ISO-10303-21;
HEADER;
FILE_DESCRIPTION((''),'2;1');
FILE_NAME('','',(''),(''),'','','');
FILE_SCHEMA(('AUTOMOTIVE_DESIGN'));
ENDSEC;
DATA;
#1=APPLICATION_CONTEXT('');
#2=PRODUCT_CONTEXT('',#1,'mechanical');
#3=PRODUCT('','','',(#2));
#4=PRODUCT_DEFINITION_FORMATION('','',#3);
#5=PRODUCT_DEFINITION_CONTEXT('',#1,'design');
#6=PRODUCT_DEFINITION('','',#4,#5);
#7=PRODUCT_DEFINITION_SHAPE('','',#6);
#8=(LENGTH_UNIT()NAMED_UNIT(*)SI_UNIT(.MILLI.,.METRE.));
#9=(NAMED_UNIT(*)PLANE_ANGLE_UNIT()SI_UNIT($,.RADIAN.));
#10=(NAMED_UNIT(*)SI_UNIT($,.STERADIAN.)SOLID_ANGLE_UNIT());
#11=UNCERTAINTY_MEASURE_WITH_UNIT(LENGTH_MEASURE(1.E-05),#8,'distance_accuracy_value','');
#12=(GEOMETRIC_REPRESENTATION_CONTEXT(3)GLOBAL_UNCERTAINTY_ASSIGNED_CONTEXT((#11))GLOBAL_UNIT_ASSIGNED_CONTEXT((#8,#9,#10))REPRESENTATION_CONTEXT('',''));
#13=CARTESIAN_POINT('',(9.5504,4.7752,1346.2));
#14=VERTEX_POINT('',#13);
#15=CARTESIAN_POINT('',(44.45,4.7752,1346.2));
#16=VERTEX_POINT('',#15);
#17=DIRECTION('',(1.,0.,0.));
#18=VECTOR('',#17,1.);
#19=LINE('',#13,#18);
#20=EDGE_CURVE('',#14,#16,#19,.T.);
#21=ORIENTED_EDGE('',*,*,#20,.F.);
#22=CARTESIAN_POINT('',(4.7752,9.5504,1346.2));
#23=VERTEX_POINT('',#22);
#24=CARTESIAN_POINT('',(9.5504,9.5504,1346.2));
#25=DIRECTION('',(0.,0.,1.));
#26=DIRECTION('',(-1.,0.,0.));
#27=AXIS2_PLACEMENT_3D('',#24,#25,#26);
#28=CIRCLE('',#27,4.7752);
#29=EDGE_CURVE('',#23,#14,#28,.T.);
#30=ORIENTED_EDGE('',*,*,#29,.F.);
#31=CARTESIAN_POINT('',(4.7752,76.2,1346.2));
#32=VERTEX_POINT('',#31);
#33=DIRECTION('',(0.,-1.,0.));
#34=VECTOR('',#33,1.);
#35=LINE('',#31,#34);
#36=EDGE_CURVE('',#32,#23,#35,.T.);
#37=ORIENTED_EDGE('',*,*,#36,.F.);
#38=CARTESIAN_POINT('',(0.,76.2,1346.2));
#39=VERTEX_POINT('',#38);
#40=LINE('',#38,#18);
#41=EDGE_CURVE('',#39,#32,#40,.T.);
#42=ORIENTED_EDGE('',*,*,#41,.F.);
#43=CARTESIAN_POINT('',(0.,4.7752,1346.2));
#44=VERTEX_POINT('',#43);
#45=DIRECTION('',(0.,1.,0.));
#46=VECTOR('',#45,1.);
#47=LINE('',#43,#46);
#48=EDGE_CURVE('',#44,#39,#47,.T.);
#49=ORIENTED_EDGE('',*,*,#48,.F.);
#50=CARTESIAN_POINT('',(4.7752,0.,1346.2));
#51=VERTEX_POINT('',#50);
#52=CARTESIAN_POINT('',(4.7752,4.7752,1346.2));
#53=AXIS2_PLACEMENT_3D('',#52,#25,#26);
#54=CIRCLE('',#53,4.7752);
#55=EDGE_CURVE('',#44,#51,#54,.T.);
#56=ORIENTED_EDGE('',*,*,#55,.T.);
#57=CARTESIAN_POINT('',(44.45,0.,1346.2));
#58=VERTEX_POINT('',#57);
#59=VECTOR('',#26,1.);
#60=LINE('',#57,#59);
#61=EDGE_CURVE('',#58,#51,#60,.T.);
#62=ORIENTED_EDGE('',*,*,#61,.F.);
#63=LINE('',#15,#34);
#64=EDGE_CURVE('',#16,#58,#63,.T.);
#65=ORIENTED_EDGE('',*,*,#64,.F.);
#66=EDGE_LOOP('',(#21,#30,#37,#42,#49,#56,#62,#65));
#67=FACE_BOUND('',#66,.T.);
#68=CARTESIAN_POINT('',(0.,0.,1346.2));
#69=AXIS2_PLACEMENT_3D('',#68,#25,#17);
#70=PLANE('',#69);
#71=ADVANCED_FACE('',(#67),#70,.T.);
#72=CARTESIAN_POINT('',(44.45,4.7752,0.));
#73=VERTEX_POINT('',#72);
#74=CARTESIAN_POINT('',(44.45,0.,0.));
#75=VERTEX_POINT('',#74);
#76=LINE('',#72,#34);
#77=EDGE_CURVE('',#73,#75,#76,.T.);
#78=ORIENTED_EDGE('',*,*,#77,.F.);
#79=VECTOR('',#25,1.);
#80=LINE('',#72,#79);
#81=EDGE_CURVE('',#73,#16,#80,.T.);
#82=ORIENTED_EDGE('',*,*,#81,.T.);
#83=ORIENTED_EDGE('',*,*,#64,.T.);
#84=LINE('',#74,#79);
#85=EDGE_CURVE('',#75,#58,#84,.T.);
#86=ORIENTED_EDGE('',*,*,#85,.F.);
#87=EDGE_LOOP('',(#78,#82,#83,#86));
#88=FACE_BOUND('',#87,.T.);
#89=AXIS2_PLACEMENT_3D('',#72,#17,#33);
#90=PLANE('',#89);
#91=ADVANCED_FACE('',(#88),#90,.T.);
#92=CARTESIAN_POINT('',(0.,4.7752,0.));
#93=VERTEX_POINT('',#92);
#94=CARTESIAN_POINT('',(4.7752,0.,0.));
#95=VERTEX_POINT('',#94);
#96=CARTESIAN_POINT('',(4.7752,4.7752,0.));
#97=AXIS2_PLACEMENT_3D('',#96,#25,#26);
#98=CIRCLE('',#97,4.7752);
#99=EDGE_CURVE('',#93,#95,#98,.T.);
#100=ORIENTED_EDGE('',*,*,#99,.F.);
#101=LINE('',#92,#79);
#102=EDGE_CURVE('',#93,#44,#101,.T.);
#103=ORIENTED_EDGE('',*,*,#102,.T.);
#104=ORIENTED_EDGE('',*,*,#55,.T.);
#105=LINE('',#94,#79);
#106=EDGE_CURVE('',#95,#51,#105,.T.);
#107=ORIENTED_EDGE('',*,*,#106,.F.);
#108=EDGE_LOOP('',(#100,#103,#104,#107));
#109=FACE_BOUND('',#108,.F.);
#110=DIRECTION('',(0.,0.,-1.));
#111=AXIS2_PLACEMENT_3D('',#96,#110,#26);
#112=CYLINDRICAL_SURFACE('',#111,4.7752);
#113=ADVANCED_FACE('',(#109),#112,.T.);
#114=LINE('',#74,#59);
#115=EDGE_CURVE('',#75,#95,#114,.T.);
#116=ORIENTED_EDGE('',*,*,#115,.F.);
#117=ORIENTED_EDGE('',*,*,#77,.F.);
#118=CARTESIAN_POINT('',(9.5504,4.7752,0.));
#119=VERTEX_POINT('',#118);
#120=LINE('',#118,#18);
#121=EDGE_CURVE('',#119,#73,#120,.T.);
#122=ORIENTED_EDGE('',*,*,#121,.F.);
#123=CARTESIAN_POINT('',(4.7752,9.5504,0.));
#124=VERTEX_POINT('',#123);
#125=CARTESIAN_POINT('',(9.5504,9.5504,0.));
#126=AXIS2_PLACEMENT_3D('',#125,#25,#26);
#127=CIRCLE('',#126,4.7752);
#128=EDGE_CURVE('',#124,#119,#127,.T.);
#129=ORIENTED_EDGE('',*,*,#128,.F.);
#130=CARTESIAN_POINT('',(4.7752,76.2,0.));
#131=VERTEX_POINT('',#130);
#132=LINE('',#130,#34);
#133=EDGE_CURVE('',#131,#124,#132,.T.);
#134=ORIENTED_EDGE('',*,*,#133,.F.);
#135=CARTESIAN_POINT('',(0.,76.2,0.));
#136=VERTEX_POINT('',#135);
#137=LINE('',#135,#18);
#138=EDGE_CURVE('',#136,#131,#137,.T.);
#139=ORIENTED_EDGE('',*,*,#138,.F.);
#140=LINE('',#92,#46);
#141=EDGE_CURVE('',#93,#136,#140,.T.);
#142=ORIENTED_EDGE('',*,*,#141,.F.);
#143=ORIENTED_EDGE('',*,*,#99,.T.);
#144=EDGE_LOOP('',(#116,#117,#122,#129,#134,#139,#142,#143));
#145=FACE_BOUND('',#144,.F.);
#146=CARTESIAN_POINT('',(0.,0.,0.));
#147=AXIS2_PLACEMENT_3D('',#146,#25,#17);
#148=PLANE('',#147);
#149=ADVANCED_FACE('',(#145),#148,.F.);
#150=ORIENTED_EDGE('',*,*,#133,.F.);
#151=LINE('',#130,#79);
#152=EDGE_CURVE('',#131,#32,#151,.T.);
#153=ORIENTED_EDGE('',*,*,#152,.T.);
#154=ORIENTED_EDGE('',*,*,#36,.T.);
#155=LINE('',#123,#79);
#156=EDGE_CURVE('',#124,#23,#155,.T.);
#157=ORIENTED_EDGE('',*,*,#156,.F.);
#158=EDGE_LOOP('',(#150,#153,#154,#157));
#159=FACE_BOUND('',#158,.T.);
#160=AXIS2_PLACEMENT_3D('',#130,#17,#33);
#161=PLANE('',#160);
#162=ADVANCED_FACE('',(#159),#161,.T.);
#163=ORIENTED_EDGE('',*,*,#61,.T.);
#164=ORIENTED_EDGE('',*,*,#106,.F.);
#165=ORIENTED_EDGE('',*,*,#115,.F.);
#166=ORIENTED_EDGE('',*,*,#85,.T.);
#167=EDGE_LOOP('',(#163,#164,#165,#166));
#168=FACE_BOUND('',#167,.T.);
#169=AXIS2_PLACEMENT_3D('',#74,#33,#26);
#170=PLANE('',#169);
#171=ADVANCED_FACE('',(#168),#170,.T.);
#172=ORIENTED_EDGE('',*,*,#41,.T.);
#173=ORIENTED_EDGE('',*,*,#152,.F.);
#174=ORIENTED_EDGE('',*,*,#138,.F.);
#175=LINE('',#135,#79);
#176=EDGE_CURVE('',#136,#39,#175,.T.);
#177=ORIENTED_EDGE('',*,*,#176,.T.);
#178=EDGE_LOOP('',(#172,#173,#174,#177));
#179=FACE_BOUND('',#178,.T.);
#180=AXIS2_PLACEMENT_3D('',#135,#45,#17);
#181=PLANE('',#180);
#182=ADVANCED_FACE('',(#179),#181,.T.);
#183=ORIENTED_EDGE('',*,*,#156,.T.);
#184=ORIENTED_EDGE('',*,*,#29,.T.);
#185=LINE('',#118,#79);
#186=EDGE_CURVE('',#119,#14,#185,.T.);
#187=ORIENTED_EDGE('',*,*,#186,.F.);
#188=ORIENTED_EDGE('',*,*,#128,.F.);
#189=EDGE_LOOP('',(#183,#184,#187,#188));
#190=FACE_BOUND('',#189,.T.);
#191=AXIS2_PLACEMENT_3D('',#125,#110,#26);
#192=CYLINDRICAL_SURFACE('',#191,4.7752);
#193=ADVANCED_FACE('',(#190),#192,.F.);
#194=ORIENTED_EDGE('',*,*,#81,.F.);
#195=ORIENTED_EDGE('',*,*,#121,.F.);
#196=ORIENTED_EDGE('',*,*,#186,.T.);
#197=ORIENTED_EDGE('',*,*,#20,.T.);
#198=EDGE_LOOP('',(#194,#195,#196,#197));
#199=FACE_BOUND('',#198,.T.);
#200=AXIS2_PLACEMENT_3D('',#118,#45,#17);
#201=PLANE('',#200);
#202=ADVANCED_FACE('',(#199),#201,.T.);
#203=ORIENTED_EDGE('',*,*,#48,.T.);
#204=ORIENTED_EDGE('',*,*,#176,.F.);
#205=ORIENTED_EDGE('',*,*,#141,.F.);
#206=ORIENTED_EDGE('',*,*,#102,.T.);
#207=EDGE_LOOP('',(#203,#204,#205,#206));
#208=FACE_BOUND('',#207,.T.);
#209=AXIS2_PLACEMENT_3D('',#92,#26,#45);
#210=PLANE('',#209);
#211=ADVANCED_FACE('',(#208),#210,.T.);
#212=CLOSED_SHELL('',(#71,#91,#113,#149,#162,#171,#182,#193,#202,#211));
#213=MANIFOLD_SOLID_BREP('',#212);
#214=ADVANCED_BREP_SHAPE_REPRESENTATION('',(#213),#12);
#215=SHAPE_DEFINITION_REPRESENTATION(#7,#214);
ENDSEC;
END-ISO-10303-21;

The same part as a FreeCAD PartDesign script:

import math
import FreeCAD as App
import Part
import Sketcher

V = App.Vector
Q = App.Units.Quantity

doc = App.newDocument("Part")
params = doc.addObject("Spreadsheet::Sheet", "Params")
for row, (alias, value) in enumerate([
    ("sketch1_radius", "0.188 in"),
    ("pad1_length", "53 in"),
], start=1):
    params.set(f"A{row}", alias)
    params.set(f"B{row}", "=" + value)
    params.setAlias(f"B{row}", alias)

body = doc.addObject("PartDesign::Body", "Body")

# Sketch on XY plane
sketch1 = body.newObject("Sketcher::SketchObject", "Sketch")
sketch1.AttachmentSupport = (doc.getObject("XY_Plane"), [""])
sketch1.MapMode = "FlatFace"
sketch1.addGeometry([
    Part.LineSegment(V(0, 76.2, 0), V(0, 4.8, 0)),  # 0
    Part.ArcOfCircle(Part.Circle(V(4.8, 4.8, 0), V(0, 0, 1), 4.8), math.radians(180), math.radians(270)),  # 1
    Part.LineSegment(V(4.8, 0, 0), V(44.5, 0, 0)),  # 2
    Part.LineSegment(V(44.5, 0, 0), V(44.5, 4.8, 0)),  # 3
    Part.LineSegment(V(44.5, 4.8, 0), V(9.6, 4.8, 0)),  # 4
    Part.ArcOfCircle(Part.Circle(V(9.6, 9.6, 0), V(0, 0, 1), 4.8), math.radians(180), math.radians(270)),  # 5
    Part.LineSegment(V(4.8, 9.6, 0), V(4.8, 76.2, 0)),  # 6
    Part.LineSegment(V(4.8, 76.2, 0), V(0, 76.2, 0)),  # 7
], False)
sketch1.addConstraint([
    Sketcher.Constraint("Tangent", 0, 2, 1, 1),
    Sketcher.Constraint("Tangent", 1, 2, 2, 1),
    Sketcher.Constraint("Coincident", 2, 2, 3, 1),
    Sketcher.Constraint("Coincident", 3, 2, 4, 1),
    Sketcher.Constraint("Tangent", 4, 2, 5, 2),
    Sketcher.Constraint("Tangent", 5, 1, 6, 1),
    Sketcher.Constraint("Coincident", 6, 2, 7, 1),
    Sketcher.Constraint("Coincident", 7, 2, 0, 1),
    Sketcher.Constraint("Vertical", 0),
    Sketcher.Constraint("Horizontal", 2),
    Sketcher.Constraint("Vertical", 3),
    Sketcher.Constraint("Horizontal", 4),
    Sketcher.Constraint("Vertical", 6),
    Sketcher.Constraint("Horizontal", 7),
    Sketcher.Constraint("Equal", 1, 5),
    Sketcher.Constraint("PointOnObject", 0, 2, -2),
    Sketcher.Constraint("PointOnObject", 1, 2, -1),
    Sketcher.Constraint("Horizontal", 0, 2, 3, 2),
    Sketcher.Constraint("Vertical", 1, 2, 5, 1),
    Sketcher.Constraint("DistanceY", -1, 1, 6, 2, Q("3 in")),
    Sketcher.Constraint("Radius", 1, Q("0.188 in")),
    Sketcher.Constraint("DistanceX", -1, 1, 2, 2, Q("1.75 in")),
])
sketch1.setExpression("Constraints[20]", "Params.sketch1_radius")
pad1 = body.newObject("PartDesign::Pad", "Pad")
pad1.Profile = sketch1
pad1.setExpression("Length", "Params.pad1_length")

doc.recompute()
